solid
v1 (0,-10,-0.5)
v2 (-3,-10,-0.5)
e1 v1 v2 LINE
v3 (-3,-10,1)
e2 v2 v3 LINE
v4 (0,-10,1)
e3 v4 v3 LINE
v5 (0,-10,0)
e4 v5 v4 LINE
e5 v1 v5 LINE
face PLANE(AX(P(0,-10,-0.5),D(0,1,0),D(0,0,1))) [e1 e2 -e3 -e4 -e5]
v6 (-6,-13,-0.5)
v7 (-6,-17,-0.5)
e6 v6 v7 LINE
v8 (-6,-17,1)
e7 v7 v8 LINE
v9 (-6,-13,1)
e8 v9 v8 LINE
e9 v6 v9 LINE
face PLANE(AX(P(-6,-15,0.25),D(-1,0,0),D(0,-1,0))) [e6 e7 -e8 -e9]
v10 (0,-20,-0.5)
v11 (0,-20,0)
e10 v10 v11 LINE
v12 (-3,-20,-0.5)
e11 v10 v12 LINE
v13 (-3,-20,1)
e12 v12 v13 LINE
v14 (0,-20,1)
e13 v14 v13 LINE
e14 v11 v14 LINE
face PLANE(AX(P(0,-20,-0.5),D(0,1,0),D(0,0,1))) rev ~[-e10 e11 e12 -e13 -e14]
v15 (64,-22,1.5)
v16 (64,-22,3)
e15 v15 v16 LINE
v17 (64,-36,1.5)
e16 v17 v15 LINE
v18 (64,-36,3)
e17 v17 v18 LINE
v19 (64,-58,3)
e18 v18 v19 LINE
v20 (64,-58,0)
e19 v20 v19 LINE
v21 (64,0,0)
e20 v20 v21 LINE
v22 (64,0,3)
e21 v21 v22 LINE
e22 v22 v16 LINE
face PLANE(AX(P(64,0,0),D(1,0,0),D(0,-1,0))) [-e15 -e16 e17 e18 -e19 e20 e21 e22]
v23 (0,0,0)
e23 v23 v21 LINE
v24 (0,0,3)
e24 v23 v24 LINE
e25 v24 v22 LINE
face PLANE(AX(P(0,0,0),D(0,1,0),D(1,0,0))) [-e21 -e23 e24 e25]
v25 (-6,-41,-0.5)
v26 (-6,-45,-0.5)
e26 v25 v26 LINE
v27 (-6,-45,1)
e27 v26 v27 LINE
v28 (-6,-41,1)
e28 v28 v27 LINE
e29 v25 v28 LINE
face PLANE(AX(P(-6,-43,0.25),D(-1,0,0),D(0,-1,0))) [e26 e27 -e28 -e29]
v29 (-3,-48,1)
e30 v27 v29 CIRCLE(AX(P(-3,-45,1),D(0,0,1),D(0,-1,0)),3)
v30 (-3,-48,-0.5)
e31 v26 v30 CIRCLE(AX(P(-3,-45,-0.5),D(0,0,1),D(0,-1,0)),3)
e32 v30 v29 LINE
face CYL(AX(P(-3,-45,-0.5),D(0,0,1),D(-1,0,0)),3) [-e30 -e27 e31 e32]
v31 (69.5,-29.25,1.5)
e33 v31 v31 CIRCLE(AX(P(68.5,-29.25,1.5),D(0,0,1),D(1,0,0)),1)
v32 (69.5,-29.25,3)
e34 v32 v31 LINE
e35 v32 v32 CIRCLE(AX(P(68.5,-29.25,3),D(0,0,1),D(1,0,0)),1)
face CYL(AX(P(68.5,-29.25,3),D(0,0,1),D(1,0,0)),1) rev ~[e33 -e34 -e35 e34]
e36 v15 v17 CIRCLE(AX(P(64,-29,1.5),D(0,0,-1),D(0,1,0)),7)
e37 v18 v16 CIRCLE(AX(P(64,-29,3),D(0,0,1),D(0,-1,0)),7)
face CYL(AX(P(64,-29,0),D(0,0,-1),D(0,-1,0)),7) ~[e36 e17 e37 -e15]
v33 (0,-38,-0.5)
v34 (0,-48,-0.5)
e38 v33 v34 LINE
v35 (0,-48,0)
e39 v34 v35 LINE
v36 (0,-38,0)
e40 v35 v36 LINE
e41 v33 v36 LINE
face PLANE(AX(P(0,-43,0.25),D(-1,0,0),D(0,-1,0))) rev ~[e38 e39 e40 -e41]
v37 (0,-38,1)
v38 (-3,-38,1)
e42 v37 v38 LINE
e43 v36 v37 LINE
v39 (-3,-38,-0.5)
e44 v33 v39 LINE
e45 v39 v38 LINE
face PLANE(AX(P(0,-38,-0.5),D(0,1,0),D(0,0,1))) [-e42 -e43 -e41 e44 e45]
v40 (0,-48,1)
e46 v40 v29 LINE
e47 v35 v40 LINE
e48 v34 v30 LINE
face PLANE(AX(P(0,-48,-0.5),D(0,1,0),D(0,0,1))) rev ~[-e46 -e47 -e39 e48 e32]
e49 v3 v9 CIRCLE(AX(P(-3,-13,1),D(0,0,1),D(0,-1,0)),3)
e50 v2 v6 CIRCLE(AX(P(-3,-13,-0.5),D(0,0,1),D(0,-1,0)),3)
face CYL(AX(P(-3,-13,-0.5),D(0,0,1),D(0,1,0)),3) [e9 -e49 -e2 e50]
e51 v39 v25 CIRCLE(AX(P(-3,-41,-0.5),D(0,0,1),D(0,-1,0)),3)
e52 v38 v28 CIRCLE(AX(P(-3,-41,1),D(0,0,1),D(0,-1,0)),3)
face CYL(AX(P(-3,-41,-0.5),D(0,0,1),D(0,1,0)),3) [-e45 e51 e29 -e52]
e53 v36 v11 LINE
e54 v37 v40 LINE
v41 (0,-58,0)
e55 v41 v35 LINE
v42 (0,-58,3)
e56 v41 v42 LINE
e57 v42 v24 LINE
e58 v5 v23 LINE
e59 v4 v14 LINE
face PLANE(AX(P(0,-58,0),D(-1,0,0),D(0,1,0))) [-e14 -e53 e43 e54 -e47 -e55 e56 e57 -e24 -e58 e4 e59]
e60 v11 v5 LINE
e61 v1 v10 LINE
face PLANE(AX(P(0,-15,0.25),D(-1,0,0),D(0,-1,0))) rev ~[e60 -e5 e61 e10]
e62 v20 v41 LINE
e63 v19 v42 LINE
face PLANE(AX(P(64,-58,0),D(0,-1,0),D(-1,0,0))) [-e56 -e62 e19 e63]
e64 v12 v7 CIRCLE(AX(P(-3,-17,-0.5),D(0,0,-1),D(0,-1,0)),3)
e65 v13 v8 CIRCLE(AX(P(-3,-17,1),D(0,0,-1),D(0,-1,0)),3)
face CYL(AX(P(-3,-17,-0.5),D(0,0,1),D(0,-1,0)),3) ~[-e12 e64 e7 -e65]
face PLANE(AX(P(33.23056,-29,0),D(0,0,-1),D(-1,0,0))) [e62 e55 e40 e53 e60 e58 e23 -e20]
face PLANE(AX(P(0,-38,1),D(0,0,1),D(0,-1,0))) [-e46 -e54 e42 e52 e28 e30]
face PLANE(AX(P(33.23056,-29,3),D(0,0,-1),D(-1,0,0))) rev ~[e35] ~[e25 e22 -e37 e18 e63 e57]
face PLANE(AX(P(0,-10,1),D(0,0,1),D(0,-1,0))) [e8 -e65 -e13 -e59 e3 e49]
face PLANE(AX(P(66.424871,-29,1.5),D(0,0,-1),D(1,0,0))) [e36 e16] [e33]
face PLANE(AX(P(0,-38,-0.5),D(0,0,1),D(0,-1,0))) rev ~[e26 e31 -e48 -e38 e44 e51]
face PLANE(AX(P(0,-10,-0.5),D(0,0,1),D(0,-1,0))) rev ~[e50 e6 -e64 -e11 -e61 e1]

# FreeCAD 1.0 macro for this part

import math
import FreeCAD as App
import Part
import Sketcher

V = App.Vector


def edges_at(feature, points):
    """Names of the edges that pass closest to the given points."""
    edges = feature.Shape.Edges
    near = lambda p: min(range(len(edges)), key=lambda i: edges[i].distToShape(Part.Vertex(*p))[0])
    return sorted({f"Edge{near(p) + 1}" for p in points})


def add_polygon(sketch, points):
    """Adds a closed chain of lines whose ends are joined by coincident constraints."""
    first, n = sketch.GeometryCount, len(points)
    for a, b in zip(points, points[1:] + points[:1]):
        sketch.addGeometry(Part.LineSegment(App.Vector(*a, 0), App.Vector(*b, 0)), False)
    for i in range(n):
        sketch.addConstraint(Sketcher.Constraint("Coincident", first + i, 2, first + (i + 1) % n, 1))

doc = App.newDocument("Part")
body = doc.addObject("PartDesign::Body", "Body")

sketch1 = body.newObject("Sketcher::SketchObject", "Sketch")
sketch1.AttachmentSupport = (doc.getObject("XY_Plane"), [""])
sketch1.MapMode = "FlatFace"
sketch1.addGeometry([
    Part.LineSegment(V(64, 0, 0), V(0, 0, 0)),
    Part.LineSegment(V(0, 0, 0), V(0, -58, 0)),
    Part.LineSegment(V(0, -58, 0), V(64, -58, 0)),
    Part.LineSegment(V(64, -58, 0), V(64, -36, 0)),
    Part.ArcOfCircle(Part.Circle(V(64, -29, 0), V(0, 0, 1), 7), math.radians(-90), math.radians(90)),
    Part.LineSegment(V(64, -22, 0), V(64, 0, 0)),
], False)
sketch1.addConstraint([
    Sketcher.Constraint("Coincident", 0, 2, 1, 1),
    Sketcher.Constraint("Coincident", 1, 2, 2, 1),
    Sketcher.Constraint("Coincident", 2, 2, 3, 1),
    Sketcher.Constraint("Coincident", 3, 2, 4, 1),
    Sketcher.Constraint("Coincident", 4, 2, 5, 1),
    Sketcher.Constraint("Coincident", 5, 2, 0, 1),
    Sketcher.Constraint("Horizontal", 0),
    Sketcher.Constraint("Vertical", 1),
    Sketcher.Constraint("Horizontal", 2),
    Sketcher.Constraint("Vertical", 3),
    Sketcher.Constraint("Vertical", 5),
    Sketcher.Constraint("Coincident", 0, 2, -1, 1),
    Sketcher.Constraint("Vertical", 4, 3, 2, 2),
    Sketcher.Constraint("Vertical", 3, 2, 4, 2),
    Sketcher.Constraint("Equal", 3, 5),
    Sketcher.Constraint("Radius", 4, 7.0),
    Sketcher.Constraint("DistanceX", 0, 2, 0, 1, 64.0),
    Sketcher.Constraint("DistanceY", 1, 2, 1, 1, 58.0),
])
pad1 = body.newObject("PartDesign::Pad", "Pad")
pad1.Profile = sketch1
pad1.Length = 3

sketch2 = body.newObject("Sketcher::SketchObject", "Sketch001")
sketch2.AttachmentSupport = (doc.getObject("XY_Plane"), [""])
sketch2.MapMode = "FlatFace"
sketch2.addGeometry([
    Part.ArcOfCircle(Part.Circle(V(64, -29, 0), V(0, 0, 1), 7), math.radians(-90), math.radians(90)),
    Part.LineSegment(V(64, -36, 0), V(64, -22, 0)),
], False)
sketch2.addConstraint([
    Sketcher.Constraint("Coincident", 0, 1, 1, 1),
    Sketcher.Constraint("Coincident", 1, 2, 0, 2),
    Sketcher.Constraint("Vertical", 1),
    Sketcher.Constraint("Radius", 0, 7.0),
    Sketcher.Constraint("DistanceX", -1, 1, 0, 3, 64.0),
    Sketcher.Constraint("DistanceY", 0, 3, -1, 1, 29.0),
    Sketcher.Constraint("DistanceX", -1, 1, 0, 1, 64.0),
])
pocket1 = body.newObject("PartDesign::Pocket", "Pocket")
pocket1.Profile = sketch2
pocket1.Length = 1.5
pocket1.Reversed = True

sketch3 = body.newObject("Sketcher::SketchObject", "Sketch002")
sketch3.AttachmentSupport = (doc.getObject("XY_Plane"), [""])
sketch3.MapMode = "FlatFace"
sketch3.AttachmentOffset = App.Placement(V(0, 0, 3), App.Rotation())
sketch3.addGeometry(Part.Circle(V(68.5, -29.25, 0), V(0, 0, 1), 1), False)
sketch3.addConstraint([
    Sketcher.Constraint("Diameter", 0, 2.0),
    Sketcher.Constraint("DistanceX", -1, 1, 0, 3, 68.5),
    Sketcher.Constraint("DistanceY", 0, 3, -1, 1, 29.25),
])
pocket2 = body.newObject("PartDesign::Pocket", "Pocket001")
pocket2.Profile = sketch3
pocket2.Type = "ThroughAll"

sketch4 = body.newObject("Sketcher::SketchObject", "Sketch003")
sketch4.AttachmentSupport = (doc.getObject("YZ_Plane"), [""])
sketch4.MapMode = "FlatFace"
add_polygon(sketch4, [(-38, 1), (-38, -0.5), (-48, -0.5), (-48, 1)])
add_polygon(sketch4, [(-10, 1), (-10, -0.5), (-20, -0.5), (-20, 1)])
sketch4.addConstraint([
    Sketcher.Constraint("Vertical", 0),
    Sketcher.Constraint("Horizontal", 1),
    Sketcher.Constraint("Vertical", 2),
    Sketcher.Constraint("Horizontal", 3),
    Sketcher.Constraint("Vertical", 4),
    Sketcher.Constraint("Horizontal", 5),
    Sketcher.Constraint("Vertical", 6),
    Sketcher.Constraint("Horizontal", 7),
    Sketcher.Constraint("Horizontal", 1, 2, 4, 2),
    Sketcher.Constraint("Horizontal", 3, 2, 6, 2),
    Sketcher.Constraint("Equal", 3, 5),
    Sketcher.Constraint("DistanceX", 1, 2, 1, 1, 10.0),
    Sketcher.Constraint("DistanceY", 0, 2, 0, 1, 1.5),
    Sketcher.Constraint("DistanceX", 0, 2, -1, 1, 38.0),
    Sketcher.Constraint("DistanceY", -1, 1, 2, 2, 1.0),
    Sketcher.Constraint("DistanceX", 4, 2, -1, 1, 10.0),
])
pad2 = body.newObject("PartDesign::Pad", "Pad001")
pad2.Profile = sketch4
pad2.Length = 6
pad2.Reversed = True
doc.recompute()

fillet = body.newObject("PartDesign::Fillet", "Fillet")
fillet.Base = (pad2, edges_at(pad2, [
    (-6, -48, 0.25),
    (-6, -38, 0.25),
    (-6, -20, 0.25),
    (-6, -10, 0.25),
]))
fillet.Radius = 3

doc.recompute()
